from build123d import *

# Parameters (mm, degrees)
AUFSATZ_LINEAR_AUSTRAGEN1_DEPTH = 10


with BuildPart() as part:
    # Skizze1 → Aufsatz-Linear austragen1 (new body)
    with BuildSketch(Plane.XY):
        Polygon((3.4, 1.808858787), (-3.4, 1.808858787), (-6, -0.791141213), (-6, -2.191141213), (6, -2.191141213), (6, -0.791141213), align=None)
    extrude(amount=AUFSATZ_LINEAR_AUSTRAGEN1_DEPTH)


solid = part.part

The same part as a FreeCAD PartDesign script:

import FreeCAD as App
import Part
import Sketcher
Q = App.Units.Quantity

doc = App.newDocument("Part")
body = doc.addObject("PartDesign::Body", "Body")

sketch1 = body.newObject("Sketcher::SketchObject", "Sketch")
sketch1.AttachmentSupport = (doc.getObject("XY_Plane"), [""])
sketch1.MapMode = "FlatFace"
sketch1.addGeometry(Part.LineSegment(App.Vector(3.4, 1.8, 0), App.Vector(-3.4, 1.8, 0)), False)
sketch1.addGeometry(Part.LineSegment(App.Vector(-3.4, 1.8, 0), App.Vector(-6, -0.8, 0)), False)
sketch1.addGeometry(Part.LineSegment(App.Vector(-6, -0.8, 0), App.Vector(-6, -2.2, 0)), False)
sketch1.addGeometry(Part.LineSegment(App.Vector(-6, -2.2, 0), App.Vector(6, -2.2, 0)), False)
sketch1.addGeometry(Part.LineSegment(App.Vector(6, -2.2, 0), App.Vector(6, -0.8, 0)), False)
sketch1.addGeometry(Part.LineSegment(App.Vector(6, -0.8, 0), App.Vector(3.4, 1.8, 0)), False)
sketch1.addConstraint(Sketcher.Constraint("Coincident", 0, 2, 1, 1))
sketch1.addConstraint(Sketcher.Constraint("Coincident", 1, 2, 2, 1))
sketch1.addConstraint(Sketcher.Constraint("Coincident", 2, 2, 3, 1))
sketch1.addConstraint(Sketcher.Constraint("Coincident", 3, 2, 4, 1))
sketch1.addConstraint(Sketcher.Constraint("Coincident", 4, 2, 5, 1))
sketch1.addConstraint(Sketcher.Constraint("Coincident", 5, 2, 0, 1))
sketch1.addConstraint(Sketcher.Constraint("Horizontal", 0))
sketch1.addConstraint(Sketcher.Constraint("Vertical", 2))
sketch1.addConstraint(Sketcher.Constraint("Horizontal", 3))
sketch1.addConstraint(Sketcher.Constraint("Vertical", 4))
sketch1.addConstraint(Sketcher.Constraint("Symmetric", 1, 2, 4, 2, -2))
sketch1.addConstraint(Sketcher.Constraint("Perpendicular", 1, 5))
sketch1.addConstraint(Sketcher.Constraint("Equal", 1, 5))
sketch1.addConstraint(Sketcher.Constraint("DistanceX", 3, 1, 3, 2, Q("12 mm")))
sketch1.addConstraint(Sketcher.Constraint("DistanceX", 0, 2, 0, 1, Q("6.8 mm")))
sketch1.addConstraint(Sketcher.Constraint("DistanceY", 2, 2, 2, 1, Q("1.4 mm")))
sketch1.addConstraint(Sketcher.Constraint("DistanceY", -1, 1, 0, 2, Q("1.808859 mm")))
pad1 = body.newObject("PartDesign::Pad", "Pad")
pad1.Profile = sketch1
pad1.Length = 10

doc.recompute()
